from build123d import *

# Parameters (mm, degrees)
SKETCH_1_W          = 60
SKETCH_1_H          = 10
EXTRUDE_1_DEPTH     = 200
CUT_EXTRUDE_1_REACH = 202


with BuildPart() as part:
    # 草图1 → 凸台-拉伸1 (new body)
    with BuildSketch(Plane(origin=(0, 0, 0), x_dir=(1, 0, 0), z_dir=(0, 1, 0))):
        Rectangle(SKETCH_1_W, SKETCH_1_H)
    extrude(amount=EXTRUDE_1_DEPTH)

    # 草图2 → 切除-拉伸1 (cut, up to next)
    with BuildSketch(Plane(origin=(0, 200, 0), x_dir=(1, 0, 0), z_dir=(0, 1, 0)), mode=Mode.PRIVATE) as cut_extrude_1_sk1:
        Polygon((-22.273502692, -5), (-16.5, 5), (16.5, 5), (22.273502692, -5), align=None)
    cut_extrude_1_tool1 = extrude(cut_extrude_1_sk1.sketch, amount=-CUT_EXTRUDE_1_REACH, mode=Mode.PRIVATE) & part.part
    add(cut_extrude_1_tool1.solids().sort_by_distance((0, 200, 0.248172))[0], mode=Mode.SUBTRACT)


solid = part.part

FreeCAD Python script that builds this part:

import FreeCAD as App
import Part
import Sketcher
from FreeCAD import Vector
Q = App.Units.Quantity


def add_polygon(sketch, points):
    """Adds a closed chain of lines whose ends are joined by coincident constraints."""
    first, n = sketch.GeometryCount, len(points)
    for a, b in zip(points, points[1:] + points[:1]):
        sketch.addGeometry(Part.LineSegment(App.Vector(*a, 0), App.Vector(*b, 0)), False)
    for i in range(n):
        sketch.addConstraint(Sketcher.Constraint("Coincident", first + i, 2, first + (i + 1) % n, 1))

doc = App.newDocument("Part")
body = doc.addObject("PartDesign::Body", "Body")
body.AllowCompound = True

# Sketch on XZ plane
sketch1 = body.newObject("Sketcher::SketchObject", "Sketch")
sketch1.AttachmentSupport = (doc.getObject("XZ_Plane"), [""])
sketch1.MapMode = "FlatFace"
add_polygon(sketch1, [(-30, -5), (-30, 5), (30, 5), (30, -5)])  # lines 0-3
sketch1.addConstraint([
    Sketcher.Constraint("Vertical", 0),
    Sketcher.Constraint("Horizontal", 1),
    Sketcher.Constraint("Vertical", 2),
    Sketcher.Constraint("Horizontal", 3),
    Sketcher.Constraint("Symmetric", 0, 2, 2, 2, -1, 1),
    Sketcher.Constraint("DistanceX", 1, 1, 1, 2, 60.0),
    Sketcher.Constraint("DistanceY", 0, 1, 0, 2, 10.0),
])
pad1 = body.newObject("PartDesign::Pad", "Pad")
pad1.Profile = sketch1
pad1.Length = 200
pad1.Reversed = True

# Sketch on XZ plane
sketch2 = body.newObject("Sketcher::SketchObject", "Sketch001")
sketch2.AttachmentSupport = (doc.getObject("XZ_Plane"), [""])
sketch2.MapMode = "FlatFace"
sketch2.AttachmentOffset = App.Placement(Vector(0, 0, -200), App.Rotation())
add_polygon(sketch2, [(-16.5, -5), (-22.273503, 5), (22.273503, 5), (16.5, -5)])  # lines 0-3
sketch2.addConstraint([
    Sketcher.Constraint("Horizontal", 1),
    Sketcher.Constraint("Horizontal", 3),
    Sketcher.Constraint("Equal", 0, 2),
    Sketcher.Constraint("DistanceX", 3, 2, 3, 1, 33.0),
    Sketcher.Constraint("Angle", 0, Q("120 deg")),
    Sketcher.Constraint("DistanceY", -1, 1, 0, 2, 5.0),
    Sketcher.Constraint("DistanceY", 2, 2, -1, 1, 5.0),
    Sketcher.Constraint("DistanceX", -1, 1, 2, 2, 16.5),
])
pocket1 = body.newObject("PartDesign::Pocket", "Pocket")
pocket1.Profile = sketch2
pocket1.Type = "UpToFirst"
pocket1.Reversed = True

doc.recompute()
